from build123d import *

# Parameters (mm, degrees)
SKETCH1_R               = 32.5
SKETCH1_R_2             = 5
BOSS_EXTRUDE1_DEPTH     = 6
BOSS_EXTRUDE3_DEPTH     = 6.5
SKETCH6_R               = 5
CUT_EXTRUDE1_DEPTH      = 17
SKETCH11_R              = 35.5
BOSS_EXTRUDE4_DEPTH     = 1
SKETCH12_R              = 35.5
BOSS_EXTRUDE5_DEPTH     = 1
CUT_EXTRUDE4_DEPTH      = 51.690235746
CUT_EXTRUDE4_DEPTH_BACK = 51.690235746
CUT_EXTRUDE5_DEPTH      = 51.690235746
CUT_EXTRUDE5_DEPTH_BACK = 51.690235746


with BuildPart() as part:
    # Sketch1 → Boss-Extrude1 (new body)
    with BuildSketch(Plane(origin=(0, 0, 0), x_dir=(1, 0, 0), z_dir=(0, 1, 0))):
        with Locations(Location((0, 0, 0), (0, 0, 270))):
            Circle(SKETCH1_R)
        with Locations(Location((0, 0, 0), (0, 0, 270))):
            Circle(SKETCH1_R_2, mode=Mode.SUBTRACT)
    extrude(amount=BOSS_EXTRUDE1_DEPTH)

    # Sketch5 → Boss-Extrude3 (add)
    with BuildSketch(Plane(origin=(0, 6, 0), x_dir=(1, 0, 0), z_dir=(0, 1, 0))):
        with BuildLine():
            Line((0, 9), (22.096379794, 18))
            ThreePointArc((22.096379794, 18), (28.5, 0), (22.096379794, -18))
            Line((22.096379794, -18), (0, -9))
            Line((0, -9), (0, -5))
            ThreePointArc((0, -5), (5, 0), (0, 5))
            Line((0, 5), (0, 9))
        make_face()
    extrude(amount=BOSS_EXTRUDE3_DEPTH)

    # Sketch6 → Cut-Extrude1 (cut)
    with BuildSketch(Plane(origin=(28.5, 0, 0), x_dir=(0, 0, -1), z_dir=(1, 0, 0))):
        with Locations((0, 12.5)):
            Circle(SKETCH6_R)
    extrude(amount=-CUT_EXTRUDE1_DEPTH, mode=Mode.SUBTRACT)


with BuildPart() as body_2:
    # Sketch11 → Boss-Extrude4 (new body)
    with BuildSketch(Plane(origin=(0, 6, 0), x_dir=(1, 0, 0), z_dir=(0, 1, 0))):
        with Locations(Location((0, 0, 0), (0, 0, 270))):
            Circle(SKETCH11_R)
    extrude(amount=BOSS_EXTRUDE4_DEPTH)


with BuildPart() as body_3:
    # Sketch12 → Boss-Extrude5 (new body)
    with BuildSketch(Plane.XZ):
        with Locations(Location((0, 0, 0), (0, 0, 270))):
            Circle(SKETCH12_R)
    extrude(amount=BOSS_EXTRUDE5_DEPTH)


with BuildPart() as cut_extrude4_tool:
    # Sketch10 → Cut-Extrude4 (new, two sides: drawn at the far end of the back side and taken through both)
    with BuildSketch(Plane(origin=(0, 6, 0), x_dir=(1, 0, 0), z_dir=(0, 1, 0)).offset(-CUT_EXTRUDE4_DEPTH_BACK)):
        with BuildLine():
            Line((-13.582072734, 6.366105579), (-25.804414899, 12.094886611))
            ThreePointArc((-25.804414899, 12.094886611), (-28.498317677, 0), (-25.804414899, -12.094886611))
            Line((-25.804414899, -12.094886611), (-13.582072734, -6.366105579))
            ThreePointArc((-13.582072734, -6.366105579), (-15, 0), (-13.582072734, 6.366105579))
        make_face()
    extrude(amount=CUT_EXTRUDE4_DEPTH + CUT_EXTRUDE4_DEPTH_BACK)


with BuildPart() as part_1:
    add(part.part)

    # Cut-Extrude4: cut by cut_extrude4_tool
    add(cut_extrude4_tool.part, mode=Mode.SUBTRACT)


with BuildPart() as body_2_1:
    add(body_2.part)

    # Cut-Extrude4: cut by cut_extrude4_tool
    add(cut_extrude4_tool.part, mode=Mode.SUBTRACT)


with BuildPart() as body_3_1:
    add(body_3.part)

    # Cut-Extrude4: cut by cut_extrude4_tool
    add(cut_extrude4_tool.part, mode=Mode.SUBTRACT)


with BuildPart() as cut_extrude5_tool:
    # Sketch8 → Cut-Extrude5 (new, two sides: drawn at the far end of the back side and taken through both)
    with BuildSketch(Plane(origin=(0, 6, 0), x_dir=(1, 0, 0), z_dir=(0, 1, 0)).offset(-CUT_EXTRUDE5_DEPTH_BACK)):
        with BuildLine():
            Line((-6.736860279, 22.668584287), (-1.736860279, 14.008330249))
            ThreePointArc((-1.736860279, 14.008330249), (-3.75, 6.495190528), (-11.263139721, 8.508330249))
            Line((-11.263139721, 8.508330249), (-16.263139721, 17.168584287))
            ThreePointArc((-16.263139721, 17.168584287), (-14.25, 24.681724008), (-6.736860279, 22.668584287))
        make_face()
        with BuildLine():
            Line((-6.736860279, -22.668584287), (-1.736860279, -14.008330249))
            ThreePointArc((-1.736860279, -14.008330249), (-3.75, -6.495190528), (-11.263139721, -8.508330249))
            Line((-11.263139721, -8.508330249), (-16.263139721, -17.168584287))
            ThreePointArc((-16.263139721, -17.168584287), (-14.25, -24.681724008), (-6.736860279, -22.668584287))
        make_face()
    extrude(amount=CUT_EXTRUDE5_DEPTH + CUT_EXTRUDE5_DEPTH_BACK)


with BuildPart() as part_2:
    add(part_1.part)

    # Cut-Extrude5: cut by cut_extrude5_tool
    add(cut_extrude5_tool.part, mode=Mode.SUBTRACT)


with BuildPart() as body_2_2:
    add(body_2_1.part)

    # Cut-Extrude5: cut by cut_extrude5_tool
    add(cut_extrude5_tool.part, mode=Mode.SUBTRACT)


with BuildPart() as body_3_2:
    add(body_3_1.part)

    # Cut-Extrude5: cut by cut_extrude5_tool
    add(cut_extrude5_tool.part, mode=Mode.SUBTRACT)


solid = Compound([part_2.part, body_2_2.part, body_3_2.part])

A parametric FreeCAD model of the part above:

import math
import FreeCAD as App
import Part
import Sketcher
Q = App.Units.Quantity

doc = App.newDocument("Part")
body = doc.addObject("PartDesign::Body", "Body")

# Sketch on XZ plane
sketch1 = body.newObject("Sketcher::SketchObject", "Sketch")
sketch1.AttachmentSupport = (doc.getObject("XZ_Plane"), [""])
sketch1.MapMode = "FlatFace"
sketch1.addGeometry(Part.Circle(App.Vector(0, 0, 0), App.Vector(0, 0, 1), 32.5), False)
sketch1.addGeometry(Part.Circle(App.Vector(0, 0, 0), App.Vector(0, 0, 1), 5), False)
sketch1.addConstraint(Sketcher.Constraint("Coincident", 0, 3, -1, 1))
sketch1.addConstraint(Sketcher.Constraint("Coincident", 1, 3, -1, 1))
sketch1.addConstraint(Sketcher.Constraint("Diameter", 0, 65.0))
sketch1.addConstraint(Sketcher.Constraint("Diameter", 1, 10.0))
pad1 = body.newObject("PartDesign::Pad", "Pad")
pad1.Profile = sketch1
pad1.Length = 6
pad1.Reversed = True

# Sketch on XZ plane
sketch2 = body.newObject("Sketcher::SketchObject", "Sketch001")
sketch2.AttachmentSupport = (doc.getObject("XZ_Plane"), [""])
sketch2.MapMode = "FlatFace"
sketch2.AttachmentOffset = App.Placement(App.Vector(0, 0, -6), App.Rotation())
sketch2.addGeometry(Part.LineSegment(App.Vector(22.09638, -18, 0), App.Vector(0, -9, 0)), False)
sketch2.addGeometry(Part.LineSegment(App.Vector(0, -9, 0), App.Vector(0, -5, 0)), False)
sketch2.addGeometry(Part.ArcOfCircle(Part.Circle(App.Vector(0, 0, 0), App.Vector(0, 0, 1), 5), math.radians(-90), math.radians(90)), False)
sketch2.addGeometry(Part.LineSegment(App.Vector(0, 5, 0), App.Vector(0, 9, 0)), False)
sketch2.addGeometry(Part.LineSegment(App.Vector(0, 9, 0), App.Vector(22.09638, 18, 0)), False)
sketch2.addGeometry(Part.ArcOfCircle(Part.Circle(App.Vector(0, 0, 0), App.Vector(0, 0, 1), 28.5), math.radians(-39.166711), math.radians(39.166711)), False)
sketch2.addConstraint(Sketcher.Constraint("Coincident", 0, 2, 1, 1))
sketch2.addConstraint(Sketcher.Constraint("Coincident", 1, 2, 2, 1))
sketch2.addConstraint(Sketcher.Constraint("Coincident", 2, 2, 3, 1))
sketch2.addConstraint(Sketcher.Constraint("Coincident", 3, 2, 4, 1))
sketch2.addConstraint(Sketcher.Constraint("Coincident", 4, 2, 5, 2))
sketch2.addConstraint(Sketcher.Constraint("Coincident", 5, 1, 0, 1))
sketch2.addConstraint(Sketcher.Constraint("Vertical", 1))
sketch2.addConstraint(Sketcher.Constraint("Vertical", 3))
sketch2.addConstraint(Sketcher.Constraint("Coincident", 2, 3, -1, 1))
sketch2.addConstraint(Sketcher.Constraint("Coincident", 5, 3, -1, 1))
sketch2.addConstraint(Sketcher.Constraint("Symmetric", 0, 2, 3, 2, -1, 1))
sketch2.addConstraint(Sketcher.Constraint("PointOnObject", 0, 2, -2))
sketch2.addConstraint(Sketcher.Constraint("Vertical", 4, 2, 5, 1))
sketch2.addConstraint(Sketcher.Constraint("Radius", 2, 5.0))
sketch2.addConstraint(Sketcher.Constraint("Radius", 5, 28.5))
sketch2.addConstraint(Sketcher.Constraint("DistanceY", 1, 1, 1, 2, 4.0))
sketch2.addConstraint(Sketcher.Constraint("DistanceY", -1, 1, 4, 2, 18.0))
pad2 = body.newObject("PartDesign::Pad", "Pad001")
pad2.Profile = sketch2
pad2.Length = 6.5
pad2.Reversed = True

# Sketch on YZ plane
sketch3 = body.newObject("Sketcher::SketchObject", "Sketch002")
sketch3.AttachmentSupport = (doc.getObject("YZ_Plane"), [""])
sketch3.MapMode = "FlatFace"
sketch3.AttachmentOffset = App.Placement(App.Vector(0, 0, 28.5), App.Rotation())
sketch3.addGeometry(Part.Circle(App.Vector(12.5, 0, 0), App.Vector(0, 0, 1), 5), False)
sketch3.addConstraint(Sketcher.Constraint("PointOnObject", 0, 3, -1))
sketch3.addConstraint(Sketcher.Constraint("Diameter", 0, 10.0))
sketch3.addConstraint(Sketcher.Constraint("DistanceX", -1, 1, 0, 3, 12.5))
pocket1 = body.newObject("PartDesign::Pocket", "Pocket")
pocket1.Profile = sketch3
pocket1.Length = 17
body2 = doc.addObject("PartDesign::Body", "Body001")

# Sketch on XZ plane
sketch4 = body2.newObject("Sketcher::SketchObject", "Sketch003")
sketch4.AttachmentSupport = (doc.getObject("XZ_Plane001"), [""])
sketch4.MapMode = "FlatFace"
sketch4.AttachmentOffset = App.Placement(App.Vector(0, 0, -6), App.Rotation())
sketch4.addGeometry(Part.Circle(App.Vector(0, 0, 0), App.Vector(0, 0, 1), 35.5), False)
sketch4.addConstraint(Sketcher.Constraint("Coincident", 0, 3, -1, 1))
sketch4.addConstraint(Sketcher.Constraint("Diameter", 0, 71.0))
pad3 = body2.newObject("PartDesign::Pad", "Pad002")
pad3.Profile = sketch4
pad3.Length = 1
pad3.Reversed = True
body3 = doc.addObject("PartDesign::Body", "Body002")

# Sketch on XZ plane
sketch5 = body3.newObject("Sketcher::SketchObject", "Sketch004")
sketch5.AttachmentSupport = (doc.getObject("XZ_Plane002"), [""])
sketch5.MapMode = "FlatFace"
sketch5.addGeometry(Part.Circle(App.Vector(0, 0, 0), App.Vector(0, 0, 1), 35.5), False)
sketch5.addConstraint(Sketcher.Constraint("Coincident", 0, 3, -1, 1))
sketch5.addConstraint(Sketcher.Constraint("Diameter", 0, 71.0))
pad4 = body3.newObject("PartDesign::Pad", "Pad003")
pad4.Profile = sketch5
pad4.Length = 1
body4 = doc.addObject("PartDesign::Body", "Body003")

# Sketch on XZ plane
sketch6 = body4.newObject("Sketcher::SketchObject", "Sketch005")
sketch6.AttachmentSupport = (doc.getObject("XZ_Plane003"), [""])
sketch6.MapMode = "FlatFace"
sketch6.AttachmentOffset = App.Placement(App.Vector(0, 0, -6), App.Rotation())
sketch6.addGeometry(Part.LineSegment(App.Vector(-13.582073, -6.366106, 0), App.Vector(-25.804415, -12.094887, 0)), False)
sketch6.addGeometry(Part.ArcOfCircle(Part.Circle(App.Vector(0, 0, 0), App.Vector(0, 0, 1), 28.498318), math.radians(154.886863), math.radians(205.113137)), False)
sketch6.addGeometry(Part.LineSegment(App.Vector(-25.804415, 12.094887, 0), App.Vector(-13.582073, 6.366106, 0)), False)
sketch6.addGeometry(Part.ArcOfCircle(Part.Circle(App.Vector(0, 0, 0), App.Vector(0, 0, 1), 15), math.radians(154.886863), math.radians(205.113137)), False)
sketch6.addConstraint(Sketcher.Constraint("Coincident", 0, 2, 1, 2))
sketch6.addConstraint(Sketcher.Constraint("Coincident", 1, 1, 2, 1))
sketch6.addConstraint(Sketcher.Constraint("Coincident", 2, 2, 3, 1))
sketch6.addConstraint(Sketcher.Constraint("Coincident", 3, 2, 0, 1))
sketch6.addConstraint(Sketcher.Constraint("Coincident", 1, 3, -1, 1))
sketch6.addConstraint(Sketcher.Constraint("Coincident", 3, 3, -1, 1))
sketch6.addConstraint(Sketcher.Constraint("Vertical", 0, 2, 1, 1))
sketch6.addConstraint(Sketcher.Constraint("Vertical", 2, 2, 3, 2))
sketch6.addConstraint(Sketcher.Constraint("Radius", 3, 15.0))
sketch6.addConstraint(Sketcher.Constraint("Radius", 1, 28.498318))
sketch6.addConstraint(Sketcher.Constraint("DistanceY", 2, 2, 1, 1, 5.728781))
sketch6.addConstraint(Sketcher.Constraint("DistanceY", 3, 2, 2, 2, 12.732211))
pad5 = body4.newObject("PartDesign::Pad", "Pad004")
pad5.Profile = sketch6
pad5.Type = "TwoLengths"
pad5.Length = 51.690236
pad5.Length2 = 51.690236
pad5.Reversed = True
doc.recompute()

body5 = doc.addObject("PartDesign::Body", "Body004")
body5.BaseFeature = body4
boolean = body.newObject("PartDesign::Boolean", "Boolean")
boolean.Type = "Cut"
boolean.addObjects([body5])
doc.recompute()

body6 = doc.addObject("PartDesign::Body", "Body005")
body6.BaseFeature = body4
boolean2 = body2.newObject("PartDesign::Boolean", "Boolean001")
boolean2.Type = "Cut"
boolean2.addObjects([body6])
doc.recompute()

boolean3 = body3.newObject("PartDesign::Boolean", "Boolean002")
boolean3.Type = "Cut"
boolean3.addObjects([body4])
body7 = doc.addObject("PartDesign::Body", "Body006")
body7.AllowCompound = True

# Sketch on XZ plane
sketch7 = body7.newObject("Sketcher::SketchObject", "Sketch006")
sketch7.AttachmentSupport = (doc.getObject("XZ_Plane006"), [""])
sketch7.MapMode = "FlatFace"
sketch7.AttachmentOffset = App.Placement(App.Vector(0, 0, -6), App.Rotation())
sketch7.addGeometry(Part.LineSegment(App.Vector(-1.73686, -14.00833, 0), App.Vector(-6.73686, -22.668584, 0)), False)
sketch7.addGeometry(Part.ArcOfCircle(Part.Circle(App.Vector(-11.5, -19.918584, 0), App.Vector(0, 0, 1), 5.5), math.radians(150), math.radians(330)), False)
sketch7.addGeometry(Part.LineSegment(App.Vector(-16.26314, -17.168584, 0), App.Vector(-11.26314, -8.50833, 0)), False)
sketch7.addGeometry(Part.ArcOfCircle(Part.Circle(App.Vector(-6.5, -11.25833, 0), App.Vector(0, 0, 1), 5.5), math.radians(-30), math.radians(150)), False)
sketch7.addGeometry(Part.LineSegment(App.Vector(-6.73686, 22.668584, 0), App.Vector(-1.73686, 14.00833, 0)), False)
sketch7.addGeometry(Part.ArcOfCircle(Part.Circle(App.Vector(-6.5, 11.25833, 0), App.Vector(0, 0, 1), 5.5), math.radians(-150), math.radians(30)), False)
sketch7.addGeometry(Part.LineSegment(App.Vector(-11.26314, 8.50833, 0), App.Vector(-16.26314, 17.168584, 0)), False)
sketch7.addGeometry(Part.ArcOfCircle(Part.Circle(App.Vector(-11.5, 19.918584, 0), App.Vector(0, 0, 1), 5.5), math.radians(30), math.radians(210)), False)
sketch7.addConstraint(Sketcher.Constraint("Tangent", 0, 2, 1, 2))
sketch7.addConstraint(Sketcher.Constraint("Tangent", 1, 1, 2, 1))
sketch7.addConstraint(Sketcher.Constraint("Tangent", 2, 2, 3, 2))
sketch7.addConstraint(Sketcher.Constraint("Tangent", 3, 1, 0, 1))
sketch7.addConstraint(Sketcher.Constraint("Tangent", 4, 2, 5, 2))
sketch7.addConstraint(Sketcher.Constraint("Tangent", 5, 1, 6, 1))
sketch7.addConstraint(Sketcher.Constraint("Tangent", 6, 2, 7, 2))
sketch7.addConstraint(Sketcher.Constraint("Tangent", 7, 1, 4, 1))
sketch7.addConstraint(Sketcher.Constraint("Equal", 1, 3))
sketch7.addConstraint(Sketcher.Constraint("Equal", 3, 5))
sketch7.addConstraint(Sketcher.Constraint("Equal", 5, 7))
sketch7.addConstraint(Sketcher.Constraint("Symmetric", 3, 3, 5, 3, -1))
sketch7.addConstraint(Sketcher.Constraint("Symmetric", 1, 3, 7, 3, -1))
sketch7.addConstraint(Sketcher.Constraint("Radius", 1, 5.5))
sketch7.addConstraint(Sketcher.Constraint("Angle", 0, Q("-120 deg")))
sketch7.addConstraint(Sketcher.Constraint("Distance", 0, 10.0))
sketch7.addConstraint(Sketcher.Constraint("DistanceX", 1, 3, -1, 1, 11.5))
sketch7.addConstraint(Sketcher.Constraint("DistanceY", 3, 3, -1, 1, 11.25833))
pad6 = body7.newObject("PartDesign::Pad", "Pad005")
pad6.Profile = sketch7
pad6.Type = "TwoLengths"
pad6.Length = 51.690236
pad6.Length2 = 51.690236
pad6.Reversed = True
doc.recompute()

body8 = doc.addObject("PartDesign::Body", "Body007")
body8.BaseFeature = body7
boolean4 = body.newObject("PartDesign::Boolean", "Boolean003")
boolean4.Type = "Cut"
boolean4.addObjects([body8])
doc.recompute()

body9 = doc.addObject("PartDesign::Body", "Body008")
body9.BaseFeature = body7
boolean5 = body2.newObject("PartDesign::Boolean", "Boolean004")
boolean5.Type = "Cut"
boolean5.addObjects([body9])
doc.recompute()

boolean6 = body3.newObject("PartDesign::Boolean", "Boolean005")
boolean6.Type = "Cut"
boolean6.addObjects([body7])

doc.recompute()
